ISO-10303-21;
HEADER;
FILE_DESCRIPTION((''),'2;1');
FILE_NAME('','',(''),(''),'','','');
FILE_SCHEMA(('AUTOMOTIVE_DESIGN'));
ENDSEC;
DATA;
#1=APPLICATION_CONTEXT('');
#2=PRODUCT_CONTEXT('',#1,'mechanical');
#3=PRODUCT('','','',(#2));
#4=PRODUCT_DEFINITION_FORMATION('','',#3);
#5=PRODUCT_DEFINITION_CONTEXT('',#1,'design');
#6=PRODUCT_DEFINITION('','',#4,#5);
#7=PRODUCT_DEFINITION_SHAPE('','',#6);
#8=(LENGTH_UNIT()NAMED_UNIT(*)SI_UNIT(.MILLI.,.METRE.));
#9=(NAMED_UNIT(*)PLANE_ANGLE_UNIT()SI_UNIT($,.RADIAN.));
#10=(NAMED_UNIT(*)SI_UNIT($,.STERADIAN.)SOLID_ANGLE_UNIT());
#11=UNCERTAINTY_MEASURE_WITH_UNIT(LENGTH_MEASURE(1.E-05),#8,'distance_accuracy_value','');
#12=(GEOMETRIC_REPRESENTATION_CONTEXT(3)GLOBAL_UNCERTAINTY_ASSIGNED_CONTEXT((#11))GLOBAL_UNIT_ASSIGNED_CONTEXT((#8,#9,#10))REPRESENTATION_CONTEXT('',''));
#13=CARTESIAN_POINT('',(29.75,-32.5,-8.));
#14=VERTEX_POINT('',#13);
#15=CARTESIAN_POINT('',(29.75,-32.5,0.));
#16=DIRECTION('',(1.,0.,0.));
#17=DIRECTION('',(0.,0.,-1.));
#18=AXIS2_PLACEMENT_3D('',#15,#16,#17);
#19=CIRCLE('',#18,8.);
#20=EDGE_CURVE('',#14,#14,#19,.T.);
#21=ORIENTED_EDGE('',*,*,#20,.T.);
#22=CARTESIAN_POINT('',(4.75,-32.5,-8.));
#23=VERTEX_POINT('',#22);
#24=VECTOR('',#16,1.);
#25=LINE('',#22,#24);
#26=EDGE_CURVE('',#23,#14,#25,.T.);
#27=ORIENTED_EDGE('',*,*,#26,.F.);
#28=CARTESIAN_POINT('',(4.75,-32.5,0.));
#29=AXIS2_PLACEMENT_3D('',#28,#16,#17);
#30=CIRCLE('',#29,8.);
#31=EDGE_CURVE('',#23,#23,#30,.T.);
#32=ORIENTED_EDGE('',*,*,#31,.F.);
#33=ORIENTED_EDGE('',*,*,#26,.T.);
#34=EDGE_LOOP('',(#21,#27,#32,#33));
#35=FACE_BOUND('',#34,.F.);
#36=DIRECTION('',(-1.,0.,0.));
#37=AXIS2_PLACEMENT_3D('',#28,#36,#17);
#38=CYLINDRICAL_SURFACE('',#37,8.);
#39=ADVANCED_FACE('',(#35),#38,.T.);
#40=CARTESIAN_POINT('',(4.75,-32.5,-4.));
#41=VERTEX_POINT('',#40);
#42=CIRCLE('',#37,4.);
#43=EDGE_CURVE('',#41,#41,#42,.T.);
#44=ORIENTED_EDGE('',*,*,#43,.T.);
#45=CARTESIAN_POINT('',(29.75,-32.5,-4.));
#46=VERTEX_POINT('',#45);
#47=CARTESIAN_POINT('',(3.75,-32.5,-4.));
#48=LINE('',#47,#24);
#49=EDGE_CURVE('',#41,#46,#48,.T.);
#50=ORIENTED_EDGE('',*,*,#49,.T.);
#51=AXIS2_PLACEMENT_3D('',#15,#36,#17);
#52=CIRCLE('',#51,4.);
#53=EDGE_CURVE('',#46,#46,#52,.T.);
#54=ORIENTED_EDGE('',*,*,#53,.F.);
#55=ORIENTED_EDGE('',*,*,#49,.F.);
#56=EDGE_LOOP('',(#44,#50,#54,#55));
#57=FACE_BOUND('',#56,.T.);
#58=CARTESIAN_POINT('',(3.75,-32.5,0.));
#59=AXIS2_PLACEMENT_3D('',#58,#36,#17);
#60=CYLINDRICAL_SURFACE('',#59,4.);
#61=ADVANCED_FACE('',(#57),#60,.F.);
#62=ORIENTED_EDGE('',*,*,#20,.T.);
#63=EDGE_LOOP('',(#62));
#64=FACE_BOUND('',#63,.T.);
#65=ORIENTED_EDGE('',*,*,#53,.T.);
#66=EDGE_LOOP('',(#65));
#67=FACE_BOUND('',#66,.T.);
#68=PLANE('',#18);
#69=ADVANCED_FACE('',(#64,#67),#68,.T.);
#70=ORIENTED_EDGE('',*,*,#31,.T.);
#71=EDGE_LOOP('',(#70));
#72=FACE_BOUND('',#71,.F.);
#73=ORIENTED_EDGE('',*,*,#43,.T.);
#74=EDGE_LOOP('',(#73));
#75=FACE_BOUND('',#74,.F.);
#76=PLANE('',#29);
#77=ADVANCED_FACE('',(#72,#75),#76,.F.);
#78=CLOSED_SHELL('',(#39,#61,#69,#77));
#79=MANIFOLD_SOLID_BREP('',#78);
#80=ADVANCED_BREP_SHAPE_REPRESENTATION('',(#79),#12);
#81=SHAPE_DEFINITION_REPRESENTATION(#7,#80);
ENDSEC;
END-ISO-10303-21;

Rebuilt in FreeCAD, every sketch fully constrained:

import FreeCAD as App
import Part
import Sketcher
Q = App.Units.Quantity

doc = App.newDocument("Part")
body = doc.addObject("PartDesign::Body", "Body")

# Sketch on XY plane
sketch1 = body.newObject("Sketcher::SketchObject", "Sketch")
sketch1.AttachmentSupport = (doc.getObject("XY_Plane"), [""])
sketch1.MapMode = "FlatFace"
sketch1.addGeometry(Part.Circle(App.Vector(0, 0, 0), App.Vector(0, 0, 1), 4), False)
sketch1.addConstraint(Sketcher.Constraint("Coincident", 0, 3, -1, 1))
sketch1.addConstraint(Sketcher.Constraint("Diameter", 0, Q("8 mm")))
pad1 = body.newObject("PartDesign::Pad", "Pad")
pad1.Profile = sketch1
pad1.Length = 27
body2 = doc.addObject("PartDesign::Body", "Body001")
doc.recompute()

body.Placement = App.Placement(App.Vector(0, 0, 0), App.Rotation(App.Vector(0, 1, 0), 90))
boolean = body2.newObject("PartDesign::Boolean", "Boolean")
boolean.Type = "Fuse"
boolean.addObjects([body])
body3 = doc.addObject("PartDesign::Body", "Body002")
doc.recompute()

body2.Placement = App.Placement(App.Vector(-13.5, 0, 0), App.Rotation(App.Vector(0, 0, 1), 0))
boolean2 = body3.newObject("PartDesign::Boolean", "Boolean001")
boolean2.Type = "Fuse"
boolean2.addObjects([body2])
body4 = doc.addObject("PartDesign::Body", "Body003")

# Sketch on XY plane
sketch2 = body4.newObject("Sketcher::SketchObject", "Sketch001")
sketch2.AttachmentSupport = (doc.getObject("XY_Plane003"), [""])
sketch2.MapMode = "FlatFace"
sketch2.addGeometry(Part.Circle(App.Vector(0, 0, 0), App.Vector(0, 0, 1), 8), False)
sketch2.addConstraint(Sketcher.Constraint("Coincident", 0, 3, -1, 1))
sketch2.addConstraint(Sketcher.Constraint("Diameter", 0, Q("16 mm")))
pad2 = body4.newObject("PartDesign::Pad", "Pad001")
pad2.Profile = sketch2
pad2.Length = 25
body5 = doc.addObject("PartDesign::Body", "Body004")
doc.recompute()

body4.Placement = App.Placement(App.Vector(0, 0, 0), App.Rotation(App.Vector(0, 1, 0), 90))
boolean3 = body5.newObject("PartDesign::Boolean", "Boolean002")
boolean3.Type = "Fuse"
boolean3.addObjects([body4])
body6 = doc.addObject("PartDesign::Body", "Body005")
doc.recompute()

body5.Placement = App.Placement(App.Vector(-12.5, 0, 0), App.Rotation(App.Vector(0, 0, 1), 0))
boolean4 = body6.newObject("PartDesign::Boolean", "Boolean003")
boolean4.Type = "Fuse"
boolean4.addObjects([body5])
doc.recompute()

boolean5 = body6.newObject("PartDesign::Boolean", "Boolean004")
boolean5.Type = "Cut"
boolean5.addObjects([body3])
body7 = doc.addObject("PartDesign::Body", "Body006")
doc.recompute()

body6.Placement = App.Placement(App.Vector(17.25, 32.5, 0), App.Rotation(App.Vector(0, 0, 1), 0))
boolean6 = body7.newObject("PartDesign::Boolean", "Boolean005")
boolean6.Type = "Fuse"
boolean6.addObjects([body6])
body8 = doc.addObject("PartDesign::Body", "Body007")
doc.recompute()

body7.Placement = App.Placement(App.Vector(0, -65, 0), App.Rotation(App.Vector(0, 0, 1), 0))
boolean7 = body8.newObject("PartDesign::Boolean", "Boolean006")
boolean7.Type = "Fuse"
boolean7.addObjects([body7])

doc.recompute()
